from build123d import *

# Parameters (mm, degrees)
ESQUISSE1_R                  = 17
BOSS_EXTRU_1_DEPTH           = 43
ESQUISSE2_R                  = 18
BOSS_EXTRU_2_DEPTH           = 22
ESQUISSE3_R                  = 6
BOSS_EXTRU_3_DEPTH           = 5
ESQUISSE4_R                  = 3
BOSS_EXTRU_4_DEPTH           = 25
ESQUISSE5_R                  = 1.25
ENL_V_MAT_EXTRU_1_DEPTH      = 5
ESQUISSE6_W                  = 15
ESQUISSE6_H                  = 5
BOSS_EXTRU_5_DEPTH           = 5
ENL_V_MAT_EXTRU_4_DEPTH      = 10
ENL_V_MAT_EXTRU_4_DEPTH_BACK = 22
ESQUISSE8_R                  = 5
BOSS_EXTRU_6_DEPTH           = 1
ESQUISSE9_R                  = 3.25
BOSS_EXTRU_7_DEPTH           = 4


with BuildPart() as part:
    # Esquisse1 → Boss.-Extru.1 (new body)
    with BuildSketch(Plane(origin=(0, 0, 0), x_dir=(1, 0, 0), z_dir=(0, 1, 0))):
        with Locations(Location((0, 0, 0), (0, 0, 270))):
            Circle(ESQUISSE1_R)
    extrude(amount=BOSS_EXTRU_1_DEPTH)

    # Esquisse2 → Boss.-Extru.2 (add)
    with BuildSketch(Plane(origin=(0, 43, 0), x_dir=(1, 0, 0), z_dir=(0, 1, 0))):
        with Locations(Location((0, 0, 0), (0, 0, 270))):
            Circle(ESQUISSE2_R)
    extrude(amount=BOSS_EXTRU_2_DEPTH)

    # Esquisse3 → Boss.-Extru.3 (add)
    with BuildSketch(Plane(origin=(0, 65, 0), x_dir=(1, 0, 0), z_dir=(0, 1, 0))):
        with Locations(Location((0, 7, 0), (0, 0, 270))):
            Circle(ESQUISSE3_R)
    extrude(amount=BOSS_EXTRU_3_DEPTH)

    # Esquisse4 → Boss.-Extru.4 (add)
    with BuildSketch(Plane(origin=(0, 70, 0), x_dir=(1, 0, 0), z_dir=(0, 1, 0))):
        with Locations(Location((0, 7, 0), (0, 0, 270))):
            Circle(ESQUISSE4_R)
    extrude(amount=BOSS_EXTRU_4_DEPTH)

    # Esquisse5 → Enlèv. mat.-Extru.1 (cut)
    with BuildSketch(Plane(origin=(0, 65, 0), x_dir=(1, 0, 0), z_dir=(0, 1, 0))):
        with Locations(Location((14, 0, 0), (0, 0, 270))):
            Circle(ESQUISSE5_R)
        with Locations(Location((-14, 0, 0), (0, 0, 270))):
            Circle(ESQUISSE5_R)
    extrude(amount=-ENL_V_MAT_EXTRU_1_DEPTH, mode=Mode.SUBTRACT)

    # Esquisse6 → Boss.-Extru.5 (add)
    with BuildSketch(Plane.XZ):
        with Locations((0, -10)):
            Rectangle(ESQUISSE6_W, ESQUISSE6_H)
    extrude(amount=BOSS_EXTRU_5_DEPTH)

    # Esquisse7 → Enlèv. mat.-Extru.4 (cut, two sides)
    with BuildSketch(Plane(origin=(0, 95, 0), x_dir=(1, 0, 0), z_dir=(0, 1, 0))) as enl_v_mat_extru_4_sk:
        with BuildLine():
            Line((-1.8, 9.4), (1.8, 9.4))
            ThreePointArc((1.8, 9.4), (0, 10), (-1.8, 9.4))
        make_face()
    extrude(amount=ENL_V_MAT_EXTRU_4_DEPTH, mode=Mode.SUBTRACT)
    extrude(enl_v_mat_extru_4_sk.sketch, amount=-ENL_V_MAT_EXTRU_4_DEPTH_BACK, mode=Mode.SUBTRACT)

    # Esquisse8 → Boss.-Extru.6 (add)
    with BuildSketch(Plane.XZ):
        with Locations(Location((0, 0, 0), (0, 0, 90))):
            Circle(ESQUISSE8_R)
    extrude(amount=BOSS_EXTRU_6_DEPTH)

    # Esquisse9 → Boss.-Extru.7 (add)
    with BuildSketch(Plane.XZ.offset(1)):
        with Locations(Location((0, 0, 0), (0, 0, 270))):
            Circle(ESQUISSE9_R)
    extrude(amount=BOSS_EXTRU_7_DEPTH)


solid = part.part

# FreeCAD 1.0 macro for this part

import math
import FreeCAD as App
import Part
import Sketcher

doc = App.newDocument("Part")
body = doc.addObject("PartDesign::Body", "Body")

# Sketch on XZ plane
sketch1 = body.newObject("Sketcher::SketchObject", "Sketch")
sketch1.AttachmentSupport = (doc.getObject("XZ_Plane"), [""])
sketch1.MapMode = "FlatFace"
sketch1.addGeometry(Part.Circle(App.Vector(0, 0, 0), App.Vector(0, 0, 1), 17), False)
sketch1.addConstraint(Sketcher.Constraint("Coincident", 0, 3, -1, 1))
sketch1.addConstraint(Sketcher.Constraint("Diameter", 0, 34.0))
pad1 = body.newObject("PartDesign::Pad", "Pad")
pad1.Profile = sketch1
pad1.Length = 43
pad1.Reversed = True

# Sketch on XZ plane
sketch2 = body.newObject("Sketcher::SketchObject", "Sketch001")
sketch2.AttachmentSupport = (doc.getObject("XZ_Plane"), [""])
sketch2.MapMode = "FlatFace"
sketch2.AttachmentOffset = App.Placement(App.Vector(0, 0, -43), App.Rotation())
sketch2.addGeometry(Part.Circle(App.Vector(0, 0, 0), App.Vector(0, 0, 1), 18), False)
sketch2.addConstraint(Sketcher.Constraint("Coincident", 0, 3, -1, 1))
sketch2.addConstraint(Sketcher.Constraint("Diameter", 0, 36.0))
pad2 = body.newObject("PartDesign::Pad", "Pad001")
pad2.Profile = sketch2
pad2.Length = 22
pad2.Reversed = True

# Sketch on XZ plane
sketch3 = body.newObject("Sketcher::SketchObject", "Sketch002")
sketch3.AttachmentSupport = (doc.getObject("XZ_Plane"), [""])
sketch3.MapMode = "FlatFace"
sketch3.AttachmentOffset = App.Placement(App.Vector(0, 0, -65), App.Rotation())
sketch3.addGeometry(Part.Circle(App.Vector(0, -7, 0), App.Vector(0, 0, 1), 6), False)
sketch3.addConstraint(Sketcher.Constraint("PointOnObject", 0, 3, -2))
sketch3.addConstraint(Sketcher.Constraint("Diameter", 0, 12.0))
sketch3.addConstraint(Sketcher.Constraint("DistanceY", 0, 3, -1, 1, 7.0))
pad3 = body.newObject("PartDesign::Pad", "Pad002")
pad3.Profile = sketch3
pad3.Length = 5
pad3.Reversed = True

# Sketch on XZ plane
sketch4 = body.newObject("Sketcher::SketchObject", "Sketch003")
sketch4.AttachmentSupport = (doc.getObject("XZ_Plane"), [""])
sketch4.MapMode = "FlatFace"
sketch4.AttachmentOffset = App.Placement(App.Vector(0, 0, -70), App.Rotation())
sketch4.addGeometry(Part.Circle(App.Vector(0, -7, 0), App.Vector(0, 0, 1), 3), False)
sketch4.addConstraint(Sketcher.Constraint("PointOnObject", 0, 3, -2))
sketch4.addConstraint(Sketcher.Constraint("Diameter", 0, 6.0))
sketch4.addConstraint(Sketcher.Constraint("DistanceY", 0, 3, -1, 1, 7.0))
pad4 = body.newObject("PartDesign::Pad", "Pad003")
pad4.Profile = sketch4
pad4.Length = 25
pad4.Reversed = True

# Sketch on XZ plane
sketch5 = body.newObject("Sketcher::SketchObject", "Sketch004")
sketch5.AttachmentSupport = (doc.getObject("XZ_Plane"), [""])
sketch5.MapMode = "FlatFace"
sketch5.AttachmentOffset = App.Placement(App.Vector(0, 0, -65), App.Rotation())
sketch5.addGeometry(Part.Circle(App.Vector(14, 0, 0), App.Vector(0, 0, 1), 1.2), False)
sketch5.addGeometry(Part.Circle(App.Vector(-14, 0, 0), App.Vector(0, 0, 1), 1.2), False)
sketch5.addConstraint(Sketcher.Constraint("Equal", 0, 1))
sketch5.addConstraint(Sketcher.Constraint("Symmetric", 0, 3, 1, 3, -1, 1))
sketch5.addConstraint(Sketcher.Constraint("PointOnObject", 0, 3, -1))
sketch5.addConstraint(Sketcher.Constraint("Diameter", 0, 2.5))
sketch5.addConstraint(Sketcher.Constraint("DistanceX", -1, 1, 0, 3, 14.0))
pocket1 = body.newObject("PartDesign::Pocket", "Pocket")
pocket1.Profile = sketch5
pocket1.Length = 5
pocket1.Reversed = True

# Sketch on XZ plane
sketch6 = body.newObject("Sketcher::SketchObject", "Sketch005")
sketch6.AttachmentSupport = (doc.getObject("XZ_Plane"), [""])
sketch6.MapMode = "FlatFace"
sketch6.addGeometry(Part.LineSegment(App.Vector(-8, -8, 0), App.Vector(-8, -12, 0)), False)
sketch6.addGeometry(Part.LineSegment(App.Vector(-8, -12, 0), App.Vector(8, -12, 0)), False)
sketch6.addGeometry(Part.LineSegment(App.Vector(8, -12, 0), App.Vector(8, -8, 0)), False)
sketch6.addGeometry(Part.LineSegment(App.Vector(8, -8, 0), App.Vector(-8, -8, 0)), False)
sketch6.addConstraint(Sketcher.Constraint("Coincident", 0, 2, 1, 1))
sketch6.addConstraint(Sketcher.Constraint("Coincident", 1, 2, 2, 1))
sketch6.addConstraint(Sketcher.Constraint("Coincident", 2, 2, 3, 1))
sketch6.addConstraint(Sketcher.Constraint("Coincident", 3, 2, 0, 1))
sketch6.addConstraint(Sketcher.Constraint("Vertical", 0))
sketch6.addConstraint(Sketcher.Constraint("Horizontal", 1))
sketch6.addConstraint(Sketcher.Constraint("Vertical", 2))
sketch6.addConstraint(Sketcher.Constraint("Horizontal", 3))
sketch6.addConstraint(Sketcher.Constraint("DistanceX", 1, 1, 1, 2, 15.0))
sketch6.addConstraint(Sketcher.Constraint("DistanceY", 0, 2, 0, 1, 5.0))
sketch6.addConstraint(Sketcher.Constraint("DistanceX", 0, 2, -1, 1, 7.5))
sketch6.addConstraint(Sketcher.Constraint("DistanceY", 0, 2, -1, 1, 12.5))
pad5 = body.newObject("PartDesign::Pad", "Pad004")
pad5.Profile = sketch6
pad5.Length = 5

# Sketch on XZ plane
sketch7 = body.newObject("Sketcher::SketchObject", "Sketch006")
sketch7.AttachmentSupport = (doc.getObject("XZ_Plane"), [""])
sketch7.MapMode = "FlatFace"
sketch7.AttachmentOffset = App.Placement(App.Vector(0, 0, -95), App.Rotation())
sketch7.addGeometry(Part.LineSegment(App.Vector(-1.8, -9.4, 0), App.Vector(1.8, -9.4, 0)), False)
sketch7.addGeometry(Part.ArcOfCircle(Part.Circle(App.Vector(0, -7, 0), App.Vector(0, 0, 1), 3), math.radians(-127), math.radians(-53)), False)
sketch7.addConstraint(Sketcher.Constraint("Coincident", 0, 1, 1, 1))
sketch7.addConstraint(Sketcher.Constraint("Coincident", 1, 2, 0, 2))
sketch7.addConstraint(Sketcher.Constraint("Horizontal", 0))
sketch7.addConstraint(Sketcher.Constraint("PointOnObject", 1, 3, -2))
sketch7.addConstraint(Sketcher.Constraint("Radius", 1, 3.0))
sketch7.addConstraint(Sketcher.Constraint("DistanceX", 0, 1, 0, 2, 3.6))
sketch7.addConstraint(Sketcher.Constraint("DistanceY", 1, 3, -1, 1, 7.0))
pocket2 = body.newObject("PartDesign::Pocket", "Pocket001")
pocket2.Profile = sketch7
pocket2.Type = "TwoLengths"
pocket2.Length = 10
pocket2.Length2 = 22

# Sketch on XZ plane
sketch8 = body.newObject("Sketcher::SketchObject", "Sketch007")
sketch8.AttachmentSupport = (doc.getObject("XZ_Plane"), [""])
sketch8.MapMode = "FlatFace"
sketch8.addGeometry(Part.Circle(App.Vector(0, 0, 0), App.Vector(0, 0, 1), 5), False)
sketch8.addConstraint(Sketcher.Constraint("Coincident", 0, 3, -1, 1))
sketch8.addConstraint(Sketcher.Constraint("Diameter", 0, 10.0))
pad6 = body.newObject("PartDesign::Pad", "Pad005")
pad6.Profile = sketch8
pad6.Length = 1

# Sketch on XZ plane
sketch9 = body.newObject("Sketcher::SketchObject", "Sketch008")
sketch9.AttachmentSupport = (doc.getObject("XZ_Plane"), [""])
sketch9.MapMode = "FlatFace"
sketch9.AttachmentOffset = App.Placement(App.Vector(0, 0, 1), App.Rotation())
sketch9.addGeometry(Part.Circle(App.Vector(0, 0, 0), App.Vector(0, 0, 1), 3.2), False)
sketch9.addConstraint(Sketcher.Constraint("Coincident", 0, 3, -1, 1))
sketch9.addConstraint(Sketcher.Constraint("Diameter", 0, 6.5))
pad7 = body.newObject("PartDesign::Pad", "Pad006")
pad7.Profile = sketch9
pad7.Length = 4

doc.recompute()
